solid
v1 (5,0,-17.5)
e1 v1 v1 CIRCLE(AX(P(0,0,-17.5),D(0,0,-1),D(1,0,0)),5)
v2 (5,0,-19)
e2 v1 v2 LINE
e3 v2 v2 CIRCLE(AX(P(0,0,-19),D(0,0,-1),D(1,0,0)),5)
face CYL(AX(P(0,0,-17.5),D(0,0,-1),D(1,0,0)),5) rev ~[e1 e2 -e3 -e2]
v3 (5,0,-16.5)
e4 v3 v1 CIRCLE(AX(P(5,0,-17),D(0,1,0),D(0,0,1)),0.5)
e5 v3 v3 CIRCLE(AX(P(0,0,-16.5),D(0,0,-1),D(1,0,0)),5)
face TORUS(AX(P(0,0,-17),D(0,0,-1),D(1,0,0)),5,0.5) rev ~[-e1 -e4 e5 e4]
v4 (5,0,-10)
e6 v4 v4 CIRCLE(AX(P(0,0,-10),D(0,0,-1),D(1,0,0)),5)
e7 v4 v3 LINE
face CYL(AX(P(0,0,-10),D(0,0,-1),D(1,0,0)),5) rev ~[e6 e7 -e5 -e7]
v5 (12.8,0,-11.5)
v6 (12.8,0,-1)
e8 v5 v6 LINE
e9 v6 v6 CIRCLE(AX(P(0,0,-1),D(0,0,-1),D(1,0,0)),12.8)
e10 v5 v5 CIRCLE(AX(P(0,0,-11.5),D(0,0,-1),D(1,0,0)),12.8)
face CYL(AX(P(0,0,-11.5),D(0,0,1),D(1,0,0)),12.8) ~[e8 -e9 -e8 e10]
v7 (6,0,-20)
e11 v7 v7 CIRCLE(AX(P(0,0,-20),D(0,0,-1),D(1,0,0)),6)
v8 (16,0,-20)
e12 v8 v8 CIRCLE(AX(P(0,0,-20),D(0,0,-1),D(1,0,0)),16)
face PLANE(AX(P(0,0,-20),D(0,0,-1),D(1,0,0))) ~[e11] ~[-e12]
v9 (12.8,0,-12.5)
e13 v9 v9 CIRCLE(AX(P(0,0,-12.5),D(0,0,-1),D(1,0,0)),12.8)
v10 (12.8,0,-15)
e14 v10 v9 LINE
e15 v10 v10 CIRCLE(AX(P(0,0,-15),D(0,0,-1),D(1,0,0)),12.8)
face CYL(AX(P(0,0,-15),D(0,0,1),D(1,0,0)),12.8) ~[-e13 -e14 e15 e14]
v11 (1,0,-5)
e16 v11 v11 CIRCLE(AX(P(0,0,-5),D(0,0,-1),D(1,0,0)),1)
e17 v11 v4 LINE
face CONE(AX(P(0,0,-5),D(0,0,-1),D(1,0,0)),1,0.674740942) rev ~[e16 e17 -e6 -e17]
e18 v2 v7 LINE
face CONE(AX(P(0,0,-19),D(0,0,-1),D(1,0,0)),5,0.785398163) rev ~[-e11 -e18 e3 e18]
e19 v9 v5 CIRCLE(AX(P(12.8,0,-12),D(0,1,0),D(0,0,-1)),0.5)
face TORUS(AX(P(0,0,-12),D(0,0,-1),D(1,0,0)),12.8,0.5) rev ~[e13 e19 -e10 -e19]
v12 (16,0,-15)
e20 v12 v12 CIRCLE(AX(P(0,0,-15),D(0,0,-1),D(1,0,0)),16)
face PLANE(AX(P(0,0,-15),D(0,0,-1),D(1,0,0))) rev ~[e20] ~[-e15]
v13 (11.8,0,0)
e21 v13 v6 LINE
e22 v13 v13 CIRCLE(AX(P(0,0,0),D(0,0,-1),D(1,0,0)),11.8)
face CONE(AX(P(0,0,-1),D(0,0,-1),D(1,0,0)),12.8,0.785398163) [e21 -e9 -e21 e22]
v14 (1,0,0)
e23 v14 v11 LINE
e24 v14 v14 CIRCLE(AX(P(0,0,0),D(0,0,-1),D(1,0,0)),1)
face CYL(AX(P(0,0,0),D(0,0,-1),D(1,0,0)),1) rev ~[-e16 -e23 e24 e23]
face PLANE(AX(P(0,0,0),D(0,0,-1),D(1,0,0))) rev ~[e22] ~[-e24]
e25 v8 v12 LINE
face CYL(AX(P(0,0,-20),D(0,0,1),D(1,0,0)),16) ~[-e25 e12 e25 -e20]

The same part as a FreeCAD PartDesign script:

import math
import FreeCAD as App
import Part
import Sketcher

V = App.Vector
Q = App.Units.Quantity


def edges_at(feature, points):
    """Names of the edges that pass closest to the given points."""
    edges = feature.Shape.Edges
    near = lambda p: min(range(len(edges)), key=lambda i: edges[i].distToShape(Part.Vertex(*p))[0])
    return sorted({f"Edge{near(p) + 1}" for p in points})

doc = App.newDocument("Part")
body = doc.addObject("PartDesign::Body", "Body")

sketch1 = body.newObject("Sketcher::SketchObject", "Sketch")
sketch1.AttachmentSupport = (doc.getObject("XZ_Plane"), [""])
sketch1.MapMode = "FlatFace"
sketch1.addGeometry(Part.LineSegment(V(12.8, 0, 0), V(1, 0, 0)), False)
sketch1.addGeometry(Part.LineSegment(V(1, 0, 0), V(1, -5, 0)), False)
sketch1.addGeometry(Part.LineSegment(V(1, -5, 0), V(5, -10, 0)), False)
sketch1.addGeometry(Part.LineSegment(V(5, -10, 0), V(5, -16.5, 0)), False)
sketch1.addGeometry(Part.ArcOfCircle(Part.Circle(V(5, -17, 0), V(0, 0, 1), 0.5), math.radians(-90), math.radians(90)), False)
sketch1.addGeometry(Part.LineSegment(V(5, -17.5, 0), V(5, -20, 0)), False)
sketch1.addGeometry(Part.LineSegment(V(5, -20, 0), V(16, -20, 0)), False)
sketch1.addGeometry(Part.LineSegment(V(16, -20, 0), V(16, -15, 0)), False)
sketch1.addGeometry(Part.LineSegment(V(16, -15, 0), V(12.8, -15, 0)), False)
sketch1.addGeometry(Part.LineSegment(V(12.8, -15, 0), V(12.8, -12.5, 0)), False)
sketch1.addGeometry(Part.ArcOfCircle(Part.Circle(V(12.8, -12, 0), V(0, 0, 1), 0.5), math.radians(90), math.radians(270)), False)
sketch1.addGeometry(Part.LineSegment(V(12.8, -11.5, 0), V(12.8, 0, 0)), False)
sketch1.addConstraint(Sketcher.Constraint("Coincident", 0, 2, 1, 1))
sketch1.addConstraint(Sketcher.Constraint("Coincident", 1, 2, 2, 1))
sketch1.addConstraint(Sketcher.Constraint("Coincident", 2, 2, 3, 1))
sketch1.addConstraint(Sketcher.Constraint("Coincident", 3, 2, 4, 2))
sketch1.addConstraint(Sketcher.Constraint("Coincident", 4, 1, 5, 1))
sketch1.addConstraint(Sketcher.Constraint("Coincident", 5, 2, 6, 1))
sketch1.addConstraint(Sketcher.Constraint("Coincident", 6, 2, 7, 1))
sketch1.addConstraint(Sketcher.Constraint("Coincident", 7, 2, 8, 1))
sketch1.addConstraint(Sketcher.Constraint("Coincident", 8, 2, 9, 1))
sketch1.addConstraint(Sketcher.Constraint("Coincident", 9, 2, 10, 2))
sketch1.addConstraint(Sketcher.Constraint("Coincident", 10, 1, 11, 1))
sketch1.addConstraint(Sketcher.Constraint("Coincident", 11, 2, 0, 1))
sketch1.addConstraint(Sketcher.Constraint("Horizontal", 0))
sketch1.addConstraint(Sketcher.Constraint("Vertical", 1))
sketch1.addConstraint(Sketcher.Constraint("Vertical", 3))
sketch1.addConstraint(Sketcher.Constraint("Vertical", 5))
sketch1.addConstraint(Sketcher.Constraint("Horizontal", 6))
sketch1.addConstraint(Sketcher.Constraint("Vertical", 7))
sketch1.addConstraint(Sketcher.Constraint("Horizontal", 8))
sketch1.addConstraint(Sketcher.Constraint("Vertical", 9))
sketch1.addConstraint(Sketcher.Constraint("Vertical", 11))
sketch1.addConstraint(Sketcher.Constraint("Equal", 4, 10))
sketch1.addConstraint(Sketcher.Constraint("PointOnObject", 0, 2, -1))
sketch1.addConstraint(Sketcher.Constraint("Vertical", 4, 3, 2, 2))
sketch1.addConstraint(Sketcher.Constraint("Vertical", 3, 2, 4, 1))
sketch1.addConstraint(Sketcher.Constraint("Vertical", 10, 3, 8, 2))
sketch1.addConstraint(Sketcher.Constraint("Vertical", 9, 2, 10, 1))
sketch1.addConstraint(Sketcher.Constraint("Equal", 1, 7))
sketch1.addConstraint(Sketcher.Constraint("Equal", 5, 9))
sketch1.addConstraint(Sketcher.Constraint("Radius", 4, Q("0.5 mm")))
sketch1.addConstraint(Sketcher.Constraint("DistanceX", 6, 1, 6, 2, Q("11 mm")))
sketch1.addConstraint(Sketcher.Constraint("DistanceY", 1, 2, 1, 1, Q("5 mm")))
sketch1.addConstraint(Sketcher.Constraint("DistanceX", 0, 2, 0, 1, Q("11.8 mm")))
sketch1.addConstraint(Sketcher.Constraint("DistanceX", 8, 2, 8, 1, Q("3.2 mm")))
sketch1.addConstraint(Sketcher.Constraint("DistanceY", 3, 2, 3, 1, Q("6.5 mm")))
sketch1.addConstraint(Sketcher.Constraint("DistanceY", 5, 2, 5, 1, Q("2.5 mm")))
sketch1.addConstraint(Sketcher.Constraint("DistanceY", 11, 1, 11, 2, Q("11.5 mm")))
sketch1.addConstraint(Sketcher.Constraint("DistanceX", -1, 1, 4, 3, Q("5 mm")))
revolution = body.newObject("PartDesign::Revolution", "Revolution")
revolution.Profile = sketch1
revolution.ReferenceAxis = (sketch1, ["V_Axis"])
revolution.Angle = 360
doc.recompute()

chamfer = body.newObject("PartDesign::Chamfer", "Chamfer")
chamfer.Base = (revolution, edges_at(revolution, [(-12.8, 0, 0)]))
chamfer.Size = 1
doc.recompute()

chamfer2 = body.newObject("PartDesign::Chamfer", "Chamfer001")
chamfer2.Base = (chamfer, edges_at(chamfer, [(-5, 0, -20)]))
chamfer2.Size = 1

doc.recompute()
